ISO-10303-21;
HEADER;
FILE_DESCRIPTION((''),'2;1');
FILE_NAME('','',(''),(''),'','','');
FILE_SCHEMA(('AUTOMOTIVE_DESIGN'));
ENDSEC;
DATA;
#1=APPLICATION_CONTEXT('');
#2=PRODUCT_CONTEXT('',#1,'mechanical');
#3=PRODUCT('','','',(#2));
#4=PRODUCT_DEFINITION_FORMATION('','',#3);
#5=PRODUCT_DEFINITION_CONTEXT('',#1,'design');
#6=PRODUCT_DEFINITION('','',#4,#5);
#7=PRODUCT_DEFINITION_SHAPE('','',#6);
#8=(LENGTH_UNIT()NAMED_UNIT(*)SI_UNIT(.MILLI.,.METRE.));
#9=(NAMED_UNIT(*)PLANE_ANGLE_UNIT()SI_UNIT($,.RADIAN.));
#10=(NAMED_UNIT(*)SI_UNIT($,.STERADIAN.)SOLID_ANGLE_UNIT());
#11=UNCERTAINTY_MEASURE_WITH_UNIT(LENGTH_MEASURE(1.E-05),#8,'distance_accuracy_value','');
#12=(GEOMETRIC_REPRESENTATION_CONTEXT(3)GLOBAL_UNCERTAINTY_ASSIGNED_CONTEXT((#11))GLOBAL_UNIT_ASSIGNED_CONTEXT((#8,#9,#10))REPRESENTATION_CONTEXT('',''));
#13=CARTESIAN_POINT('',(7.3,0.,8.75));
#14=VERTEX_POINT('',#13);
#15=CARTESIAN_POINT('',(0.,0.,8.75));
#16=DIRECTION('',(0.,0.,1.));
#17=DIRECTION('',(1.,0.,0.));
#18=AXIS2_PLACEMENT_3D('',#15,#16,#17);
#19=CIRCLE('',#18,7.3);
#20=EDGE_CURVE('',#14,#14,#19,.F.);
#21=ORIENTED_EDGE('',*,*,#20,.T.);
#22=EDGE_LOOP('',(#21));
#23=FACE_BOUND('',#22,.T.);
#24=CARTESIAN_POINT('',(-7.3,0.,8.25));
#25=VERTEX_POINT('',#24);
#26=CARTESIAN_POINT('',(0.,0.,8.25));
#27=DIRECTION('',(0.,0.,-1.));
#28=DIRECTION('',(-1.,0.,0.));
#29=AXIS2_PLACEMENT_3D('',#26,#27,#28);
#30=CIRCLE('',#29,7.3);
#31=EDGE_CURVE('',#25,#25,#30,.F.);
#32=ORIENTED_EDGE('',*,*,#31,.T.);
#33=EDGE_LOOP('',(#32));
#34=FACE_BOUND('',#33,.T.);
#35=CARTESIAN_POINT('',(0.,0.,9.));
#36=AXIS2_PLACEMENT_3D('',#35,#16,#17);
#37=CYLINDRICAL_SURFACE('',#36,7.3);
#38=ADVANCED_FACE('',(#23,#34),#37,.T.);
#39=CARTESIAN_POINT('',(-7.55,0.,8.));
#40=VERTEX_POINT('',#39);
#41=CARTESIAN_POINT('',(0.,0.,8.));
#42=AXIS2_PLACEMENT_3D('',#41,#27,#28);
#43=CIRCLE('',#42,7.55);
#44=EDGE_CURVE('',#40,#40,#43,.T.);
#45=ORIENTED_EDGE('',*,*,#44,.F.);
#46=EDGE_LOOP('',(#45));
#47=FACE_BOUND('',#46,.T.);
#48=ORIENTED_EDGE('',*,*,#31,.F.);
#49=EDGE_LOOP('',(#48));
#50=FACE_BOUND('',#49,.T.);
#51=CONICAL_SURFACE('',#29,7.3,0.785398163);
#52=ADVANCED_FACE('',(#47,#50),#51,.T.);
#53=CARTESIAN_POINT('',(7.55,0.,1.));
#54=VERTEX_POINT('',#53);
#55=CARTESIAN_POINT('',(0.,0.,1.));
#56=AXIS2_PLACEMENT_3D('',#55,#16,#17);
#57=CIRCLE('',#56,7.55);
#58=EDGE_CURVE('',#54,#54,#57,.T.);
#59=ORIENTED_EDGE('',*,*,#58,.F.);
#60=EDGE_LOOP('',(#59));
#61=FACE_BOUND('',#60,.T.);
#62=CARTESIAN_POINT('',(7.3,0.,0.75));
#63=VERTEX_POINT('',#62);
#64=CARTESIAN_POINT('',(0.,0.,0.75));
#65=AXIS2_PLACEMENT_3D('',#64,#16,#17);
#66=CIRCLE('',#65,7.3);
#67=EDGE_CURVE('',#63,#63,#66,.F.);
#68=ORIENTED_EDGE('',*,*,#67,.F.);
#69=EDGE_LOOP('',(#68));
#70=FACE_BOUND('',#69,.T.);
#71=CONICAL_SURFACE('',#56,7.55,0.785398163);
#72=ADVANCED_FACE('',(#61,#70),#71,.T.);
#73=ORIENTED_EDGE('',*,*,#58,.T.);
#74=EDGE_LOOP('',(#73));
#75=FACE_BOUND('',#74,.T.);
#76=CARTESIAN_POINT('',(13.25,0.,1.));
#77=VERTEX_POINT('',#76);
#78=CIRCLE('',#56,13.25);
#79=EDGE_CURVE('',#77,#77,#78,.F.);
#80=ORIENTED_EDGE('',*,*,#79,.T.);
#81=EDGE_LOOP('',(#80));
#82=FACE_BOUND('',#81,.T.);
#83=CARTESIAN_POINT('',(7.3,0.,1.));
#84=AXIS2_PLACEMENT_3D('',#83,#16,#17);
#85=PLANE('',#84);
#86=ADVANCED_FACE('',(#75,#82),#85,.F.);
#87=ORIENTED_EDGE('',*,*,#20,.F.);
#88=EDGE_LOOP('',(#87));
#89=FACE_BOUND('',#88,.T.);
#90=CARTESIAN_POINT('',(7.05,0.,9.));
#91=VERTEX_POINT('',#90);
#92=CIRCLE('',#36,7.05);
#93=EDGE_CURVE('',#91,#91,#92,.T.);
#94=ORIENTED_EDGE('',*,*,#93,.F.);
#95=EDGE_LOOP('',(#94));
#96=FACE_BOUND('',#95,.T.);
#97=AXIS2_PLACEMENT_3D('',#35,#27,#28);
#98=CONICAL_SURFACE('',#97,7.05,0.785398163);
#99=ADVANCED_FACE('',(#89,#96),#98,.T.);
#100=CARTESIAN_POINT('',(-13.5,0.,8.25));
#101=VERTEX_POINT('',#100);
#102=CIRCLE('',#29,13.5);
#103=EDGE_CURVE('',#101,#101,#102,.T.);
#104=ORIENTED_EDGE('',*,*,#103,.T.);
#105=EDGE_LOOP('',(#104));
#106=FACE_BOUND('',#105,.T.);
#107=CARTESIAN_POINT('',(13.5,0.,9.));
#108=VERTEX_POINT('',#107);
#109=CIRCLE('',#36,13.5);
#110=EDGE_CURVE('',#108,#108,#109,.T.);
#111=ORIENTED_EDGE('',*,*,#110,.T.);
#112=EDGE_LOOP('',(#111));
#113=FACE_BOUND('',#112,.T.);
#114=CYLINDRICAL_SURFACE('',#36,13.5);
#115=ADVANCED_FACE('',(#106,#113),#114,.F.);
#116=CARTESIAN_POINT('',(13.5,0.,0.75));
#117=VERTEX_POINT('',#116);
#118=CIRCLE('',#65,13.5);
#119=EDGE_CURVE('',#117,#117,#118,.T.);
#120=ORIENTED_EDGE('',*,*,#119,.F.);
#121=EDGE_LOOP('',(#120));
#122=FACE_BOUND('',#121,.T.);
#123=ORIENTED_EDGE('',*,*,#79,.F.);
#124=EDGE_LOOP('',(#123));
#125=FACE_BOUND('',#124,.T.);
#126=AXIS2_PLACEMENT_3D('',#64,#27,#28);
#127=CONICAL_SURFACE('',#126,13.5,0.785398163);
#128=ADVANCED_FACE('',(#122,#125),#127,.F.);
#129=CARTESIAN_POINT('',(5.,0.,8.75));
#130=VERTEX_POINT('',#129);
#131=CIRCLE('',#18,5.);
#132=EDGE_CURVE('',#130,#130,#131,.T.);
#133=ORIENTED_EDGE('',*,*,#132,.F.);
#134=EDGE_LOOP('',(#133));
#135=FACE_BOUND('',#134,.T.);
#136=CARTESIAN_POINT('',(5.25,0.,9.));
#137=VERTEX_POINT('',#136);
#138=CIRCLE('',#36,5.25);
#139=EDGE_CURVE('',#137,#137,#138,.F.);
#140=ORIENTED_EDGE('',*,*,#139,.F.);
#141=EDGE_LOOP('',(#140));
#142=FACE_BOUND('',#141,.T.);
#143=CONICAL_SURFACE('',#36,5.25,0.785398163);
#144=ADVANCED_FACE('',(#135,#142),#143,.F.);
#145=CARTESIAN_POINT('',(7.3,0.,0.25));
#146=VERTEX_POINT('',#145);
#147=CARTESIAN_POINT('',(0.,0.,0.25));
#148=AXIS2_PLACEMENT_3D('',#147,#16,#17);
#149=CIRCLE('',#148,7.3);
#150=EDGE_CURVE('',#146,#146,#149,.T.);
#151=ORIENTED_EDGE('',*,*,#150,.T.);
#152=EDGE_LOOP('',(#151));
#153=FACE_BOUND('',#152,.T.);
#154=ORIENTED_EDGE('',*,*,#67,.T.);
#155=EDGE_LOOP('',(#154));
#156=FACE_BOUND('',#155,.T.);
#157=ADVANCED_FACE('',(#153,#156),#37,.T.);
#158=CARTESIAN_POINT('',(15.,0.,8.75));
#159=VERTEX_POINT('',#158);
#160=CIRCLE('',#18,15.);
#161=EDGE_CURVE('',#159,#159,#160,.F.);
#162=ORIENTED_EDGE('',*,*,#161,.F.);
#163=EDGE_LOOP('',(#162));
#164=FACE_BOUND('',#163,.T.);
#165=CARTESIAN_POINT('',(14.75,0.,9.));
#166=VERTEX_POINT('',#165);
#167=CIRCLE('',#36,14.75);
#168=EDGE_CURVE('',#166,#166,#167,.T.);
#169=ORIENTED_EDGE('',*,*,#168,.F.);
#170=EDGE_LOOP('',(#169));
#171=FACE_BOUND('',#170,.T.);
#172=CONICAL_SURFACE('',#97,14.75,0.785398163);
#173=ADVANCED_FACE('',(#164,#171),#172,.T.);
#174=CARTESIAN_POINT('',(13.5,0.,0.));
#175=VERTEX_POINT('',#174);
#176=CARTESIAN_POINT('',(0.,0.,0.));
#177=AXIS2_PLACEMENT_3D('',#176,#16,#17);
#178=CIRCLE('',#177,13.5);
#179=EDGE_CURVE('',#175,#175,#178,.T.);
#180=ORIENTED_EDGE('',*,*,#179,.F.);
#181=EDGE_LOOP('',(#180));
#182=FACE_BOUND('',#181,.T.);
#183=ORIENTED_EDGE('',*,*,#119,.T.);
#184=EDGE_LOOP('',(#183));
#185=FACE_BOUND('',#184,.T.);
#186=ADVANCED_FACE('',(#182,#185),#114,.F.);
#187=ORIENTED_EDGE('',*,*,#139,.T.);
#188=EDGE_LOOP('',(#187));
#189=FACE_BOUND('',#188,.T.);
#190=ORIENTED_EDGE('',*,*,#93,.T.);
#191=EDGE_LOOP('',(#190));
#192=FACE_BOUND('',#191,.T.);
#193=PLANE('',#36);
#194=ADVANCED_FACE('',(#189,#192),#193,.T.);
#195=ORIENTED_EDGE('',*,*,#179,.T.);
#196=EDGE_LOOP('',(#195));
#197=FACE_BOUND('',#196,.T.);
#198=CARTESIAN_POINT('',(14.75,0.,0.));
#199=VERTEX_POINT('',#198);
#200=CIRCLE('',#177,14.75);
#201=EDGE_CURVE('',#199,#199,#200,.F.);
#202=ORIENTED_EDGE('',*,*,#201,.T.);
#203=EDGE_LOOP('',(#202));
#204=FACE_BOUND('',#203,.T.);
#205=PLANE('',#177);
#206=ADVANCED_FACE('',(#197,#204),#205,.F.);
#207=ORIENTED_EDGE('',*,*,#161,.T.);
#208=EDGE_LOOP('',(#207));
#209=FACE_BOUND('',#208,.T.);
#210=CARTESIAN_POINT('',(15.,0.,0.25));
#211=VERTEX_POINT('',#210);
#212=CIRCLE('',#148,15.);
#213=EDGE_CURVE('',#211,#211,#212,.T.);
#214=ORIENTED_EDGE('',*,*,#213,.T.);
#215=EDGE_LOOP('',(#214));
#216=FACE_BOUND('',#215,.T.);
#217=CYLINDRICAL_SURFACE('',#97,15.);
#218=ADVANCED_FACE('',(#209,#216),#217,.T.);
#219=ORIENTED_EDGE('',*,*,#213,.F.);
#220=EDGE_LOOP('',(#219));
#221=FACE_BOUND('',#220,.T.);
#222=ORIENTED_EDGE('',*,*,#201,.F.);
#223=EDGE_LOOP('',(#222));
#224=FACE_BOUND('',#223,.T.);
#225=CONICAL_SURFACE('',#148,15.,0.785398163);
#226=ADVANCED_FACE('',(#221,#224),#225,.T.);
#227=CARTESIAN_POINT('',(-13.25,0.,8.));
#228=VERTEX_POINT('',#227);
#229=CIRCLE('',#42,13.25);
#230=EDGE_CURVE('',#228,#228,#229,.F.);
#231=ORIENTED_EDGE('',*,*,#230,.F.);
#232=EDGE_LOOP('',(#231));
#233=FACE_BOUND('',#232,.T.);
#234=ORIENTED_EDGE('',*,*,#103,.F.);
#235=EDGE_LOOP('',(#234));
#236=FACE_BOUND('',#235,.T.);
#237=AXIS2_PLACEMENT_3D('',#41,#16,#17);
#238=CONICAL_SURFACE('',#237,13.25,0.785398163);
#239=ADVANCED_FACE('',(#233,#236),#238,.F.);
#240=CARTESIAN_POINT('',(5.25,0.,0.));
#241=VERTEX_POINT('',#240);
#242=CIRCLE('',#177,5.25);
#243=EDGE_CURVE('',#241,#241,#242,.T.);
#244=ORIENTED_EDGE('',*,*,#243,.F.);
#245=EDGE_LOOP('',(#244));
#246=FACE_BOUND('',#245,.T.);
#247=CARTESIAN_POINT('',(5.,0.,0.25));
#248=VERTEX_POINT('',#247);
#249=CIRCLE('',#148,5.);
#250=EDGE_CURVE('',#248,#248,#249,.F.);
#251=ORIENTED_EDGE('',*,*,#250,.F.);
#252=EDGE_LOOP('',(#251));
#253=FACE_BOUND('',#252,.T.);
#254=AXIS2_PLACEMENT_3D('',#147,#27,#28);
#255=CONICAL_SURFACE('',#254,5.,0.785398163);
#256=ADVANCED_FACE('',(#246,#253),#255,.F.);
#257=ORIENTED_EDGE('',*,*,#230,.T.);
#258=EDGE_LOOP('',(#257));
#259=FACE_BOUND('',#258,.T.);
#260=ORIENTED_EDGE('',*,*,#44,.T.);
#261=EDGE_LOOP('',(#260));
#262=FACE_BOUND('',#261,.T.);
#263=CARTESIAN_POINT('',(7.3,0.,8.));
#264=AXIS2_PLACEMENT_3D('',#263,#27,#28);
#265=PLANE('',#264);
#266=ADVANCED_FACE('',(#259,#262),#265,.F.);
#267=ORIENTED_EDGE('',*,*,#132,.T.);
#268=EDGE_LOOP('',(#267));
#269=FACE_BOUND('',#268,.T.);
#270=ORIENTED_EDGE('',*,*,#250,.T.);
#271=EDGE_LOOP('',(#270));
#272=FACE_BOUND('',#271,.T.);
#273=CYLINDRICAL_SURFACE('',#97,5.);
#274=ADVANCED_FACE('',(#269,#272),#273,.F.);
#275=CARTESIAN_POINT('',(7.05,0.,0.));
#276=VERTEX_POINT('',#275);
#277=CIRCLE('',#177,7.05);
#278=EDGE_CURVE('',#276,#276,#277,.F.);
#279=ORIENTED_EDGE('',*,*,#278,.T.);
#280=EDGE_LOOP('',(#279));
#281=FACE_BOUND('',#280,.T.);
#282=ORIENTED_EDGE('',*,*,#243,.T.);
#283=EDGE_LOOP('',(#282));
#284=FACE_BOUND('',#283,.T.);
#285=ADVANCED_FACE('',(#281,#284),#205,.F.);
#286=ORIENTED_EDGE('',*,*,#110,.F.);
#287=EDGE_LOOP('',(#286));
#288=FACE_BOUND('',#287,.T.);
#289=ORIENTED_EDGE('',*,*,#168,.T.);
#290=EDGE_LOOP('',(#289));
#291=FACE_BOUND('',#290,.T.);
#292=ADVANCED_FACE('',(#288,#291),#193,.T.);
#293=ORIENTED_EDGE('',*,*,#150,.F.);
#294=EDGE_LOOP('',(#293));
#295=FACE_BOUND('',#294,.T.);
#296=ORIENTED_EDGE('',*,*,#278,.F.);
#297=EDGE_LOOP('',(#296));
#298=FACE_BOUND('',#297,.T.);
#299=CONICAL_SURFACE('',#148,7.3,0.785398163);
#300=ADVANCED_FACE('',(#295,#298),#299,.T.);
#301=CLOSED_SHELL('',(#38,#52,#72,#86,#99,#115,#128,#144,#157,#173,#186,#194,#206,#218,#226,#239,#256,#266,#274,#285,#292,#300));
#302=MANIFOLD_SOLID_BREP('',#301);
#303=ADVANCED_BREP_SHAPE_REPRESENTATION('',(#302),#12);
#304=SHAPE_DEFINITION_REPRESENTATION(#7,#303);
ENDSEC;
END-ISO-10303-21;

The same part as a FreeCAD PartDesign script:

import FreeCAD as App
import Part
import Sketcher
from FreeCAD import Vector


def edges_at(feature, points):
    """Names of the edges that pass closest to the given points."""
    edges = feature.Shape.Edges
    near = lambda p: min(range(len(edges)), key=lambda i: edges[i].distToShape(Part.Vertex(*p))[0])
    return sorted({f"Edge{near(p) + 1}" for p in points})


def add_polygon(sketch, points):
    """Adds a closed chain of lines whose ends are joined by coincident constraints."""
    first, n = sketch.GeometryCount, len(points)
    for a, b in zip(points, points[1:] + points[:1]):
        sketch.addGeometry(Part.LineSegment(App.Vector(*a, 0), App.Vector(*b, 0)), False)
    for i in range(n):
        sketch.addConstraint(Sketcher.Constraint("Coincident", first + i, 2, first + (i + 1) % n, 1))

doc = App.newDocument("Part")
params = doc.addObject("Spreadsheet::Sheet", "Params")
for row, (alias, value) in enumerate([
    ("sketch1_diameter", "30 mm"),
    ("pad1_length", "9 mm"),
    ("sketch2_diameter", "10 mm"),
    ("sketch3_height", "1 mm"),
    ("sketch3_width", "6.2 mm"),
    ("groove_angle", "360 deg"),
    ("chamfer_size", "0.25 mm"),
], start=1):
    params.set(f"A{row}", alias)
    params.set(f"B{row}", "=" + value)
    params.setAlias(f"B{row}", alias)

body = doc.addObject("PartDesign::Body", "Body")

# Sketch on XY plane
sketch1 = body.newObject("Sketcher::SketchObject", "Sketch")
sketch1.AttachmentSupport = (doc.getObject("XY_Plane"), [""])
sketch1.MapMode = "FlatFace"
sketch1.addGeometry(Part.Circle(Vector(0, 0, 0), Vector(0, 0, 1), 15), False)
sketch1.addConstraint([
    Sketcher.Constraint("Coincident", 0, 3, -1, 1),
    Sketcher.Constraint("Diameter", 0, 30.0),
])
sketch1.setExpression("Constraints[1]", "Params.sketch1_diameter")
pad1 = body.newObject("PartDesign::Pad", "Pad")
pad1.Profile = sketch1
pad1.setExpression("Length", "Params.pad1_length")

# Sketch on XY plane
sketch2 = body.newObject("Sketcher::SketchObject", "Sketch001")
sketch2.AttachmentSupport = (doc.getObject("XY_Plane"), [""])
sketch2.MapMode = "FlatFace"
sketch2.addGeometry(Part.Circle(Vector(0, 0, 0), Vector(0, 0, 1), 5), False)
sketch2.addConstraint([
    Sketcher.Constraint("Coincident", 0, 3, -1, 1),
    Sketcher.Constraint("Diameter", 0, 10.0),
])
sketch2.setExpression("Constraints[1]", "Params.sketch2_diameter")
pocket1 = body.newObject("PartDesign::Pocket", "Pocket")
pocket1.Profile = sketch2
pocket1.Type = "ThroughAll"
pocket1.Reversed = True

# Sketch on XZ plane
sketch3 = body.newObject("Sketcher::SketchObject", "Sketch002")
sketch3.AttachmentSupport = (doc.getObject("XZ_Plane"), [""])
sketch3.MapMode = "FlatFace"
add_polygon(sketch3, [(7.3, 8), (7.3, 9), (13.5, 9), (13.5, 8)])  # lines 0-3
add_polygon(sketch3, [(7.3, 0), (7.3, 1), (13.5, 1), (13.5, 0)])  # lines 4-7
sketch3.addConstraint([
    Sketcher.Constraint("Vertical", 0),
    Sketcher.Constraint("Horizontal", 1),
    Sketcher.Constraint("Vertical", 2),
    Sketcher.Constraint("Horizontal", 3),
    Sketcher.Constraint("Vertical", 4),
    Sketcher.Constraint("Horizontal", 5),
    Sketcher.Constraint("Vertical", 6),
    Sketcher.Constraint("Horizontal", 7),
    Sketcher.Constraint("PointOnObject", 6, 2, -1),
    Sketcher.Constraint("Vertical", 3, 2, 4, 2),
    Sketcher.Constraint("Vertical", 2, 2, 5, 2),
    Sketcher.Constraint("Equal", 2, 4),
    Sketcher.Constraint("DistanceY", 0, 1, 0, 2, 1.0),
    Sketcher.Constraint("DistanceX", 1, 1, 1, 2, 6.2),
    Sketcher.Constraint("DistanceY", -1, 1, 0, 2, 9.0),
    Sketcher.Constraint("DistanceX", -1, 1, 0, 2, 7.3),
])
sketch3.setExpression("Constraints[20]", "Params.sketch3_height")
sketch3.setExpression("Constraints[21]", "Params.sketch3_width")
groove = body.newObject("PartDesign::Groove", "Groove")
groove.Profile = sketch3
groove.ReferenceAxis = (sketch3, ["V_Axis"])
groove.setExpression("Angle", "Params.groove_angle")
doc.recompute()

chamfer = body.newObject("PartDesign::Chamfer", "Chamfer")
chamfer.Base = (groove, edges_at(groove, [
    (-7.3, 0, 9),
    (-7.3, 0, 8),
    (-13.5, 0, 8),
    (-7.3, 0, 1),
    (-13.5, 0, 1),
    (-7.3, 0, 0),
    (-15, 0, 0),
    (-15, 0, 9),
    (5, 0, 9),
    (5, 0, 0),
]))
chamfer.setExpression("Size", "Params.chamfer_size")

doc.recompute()
